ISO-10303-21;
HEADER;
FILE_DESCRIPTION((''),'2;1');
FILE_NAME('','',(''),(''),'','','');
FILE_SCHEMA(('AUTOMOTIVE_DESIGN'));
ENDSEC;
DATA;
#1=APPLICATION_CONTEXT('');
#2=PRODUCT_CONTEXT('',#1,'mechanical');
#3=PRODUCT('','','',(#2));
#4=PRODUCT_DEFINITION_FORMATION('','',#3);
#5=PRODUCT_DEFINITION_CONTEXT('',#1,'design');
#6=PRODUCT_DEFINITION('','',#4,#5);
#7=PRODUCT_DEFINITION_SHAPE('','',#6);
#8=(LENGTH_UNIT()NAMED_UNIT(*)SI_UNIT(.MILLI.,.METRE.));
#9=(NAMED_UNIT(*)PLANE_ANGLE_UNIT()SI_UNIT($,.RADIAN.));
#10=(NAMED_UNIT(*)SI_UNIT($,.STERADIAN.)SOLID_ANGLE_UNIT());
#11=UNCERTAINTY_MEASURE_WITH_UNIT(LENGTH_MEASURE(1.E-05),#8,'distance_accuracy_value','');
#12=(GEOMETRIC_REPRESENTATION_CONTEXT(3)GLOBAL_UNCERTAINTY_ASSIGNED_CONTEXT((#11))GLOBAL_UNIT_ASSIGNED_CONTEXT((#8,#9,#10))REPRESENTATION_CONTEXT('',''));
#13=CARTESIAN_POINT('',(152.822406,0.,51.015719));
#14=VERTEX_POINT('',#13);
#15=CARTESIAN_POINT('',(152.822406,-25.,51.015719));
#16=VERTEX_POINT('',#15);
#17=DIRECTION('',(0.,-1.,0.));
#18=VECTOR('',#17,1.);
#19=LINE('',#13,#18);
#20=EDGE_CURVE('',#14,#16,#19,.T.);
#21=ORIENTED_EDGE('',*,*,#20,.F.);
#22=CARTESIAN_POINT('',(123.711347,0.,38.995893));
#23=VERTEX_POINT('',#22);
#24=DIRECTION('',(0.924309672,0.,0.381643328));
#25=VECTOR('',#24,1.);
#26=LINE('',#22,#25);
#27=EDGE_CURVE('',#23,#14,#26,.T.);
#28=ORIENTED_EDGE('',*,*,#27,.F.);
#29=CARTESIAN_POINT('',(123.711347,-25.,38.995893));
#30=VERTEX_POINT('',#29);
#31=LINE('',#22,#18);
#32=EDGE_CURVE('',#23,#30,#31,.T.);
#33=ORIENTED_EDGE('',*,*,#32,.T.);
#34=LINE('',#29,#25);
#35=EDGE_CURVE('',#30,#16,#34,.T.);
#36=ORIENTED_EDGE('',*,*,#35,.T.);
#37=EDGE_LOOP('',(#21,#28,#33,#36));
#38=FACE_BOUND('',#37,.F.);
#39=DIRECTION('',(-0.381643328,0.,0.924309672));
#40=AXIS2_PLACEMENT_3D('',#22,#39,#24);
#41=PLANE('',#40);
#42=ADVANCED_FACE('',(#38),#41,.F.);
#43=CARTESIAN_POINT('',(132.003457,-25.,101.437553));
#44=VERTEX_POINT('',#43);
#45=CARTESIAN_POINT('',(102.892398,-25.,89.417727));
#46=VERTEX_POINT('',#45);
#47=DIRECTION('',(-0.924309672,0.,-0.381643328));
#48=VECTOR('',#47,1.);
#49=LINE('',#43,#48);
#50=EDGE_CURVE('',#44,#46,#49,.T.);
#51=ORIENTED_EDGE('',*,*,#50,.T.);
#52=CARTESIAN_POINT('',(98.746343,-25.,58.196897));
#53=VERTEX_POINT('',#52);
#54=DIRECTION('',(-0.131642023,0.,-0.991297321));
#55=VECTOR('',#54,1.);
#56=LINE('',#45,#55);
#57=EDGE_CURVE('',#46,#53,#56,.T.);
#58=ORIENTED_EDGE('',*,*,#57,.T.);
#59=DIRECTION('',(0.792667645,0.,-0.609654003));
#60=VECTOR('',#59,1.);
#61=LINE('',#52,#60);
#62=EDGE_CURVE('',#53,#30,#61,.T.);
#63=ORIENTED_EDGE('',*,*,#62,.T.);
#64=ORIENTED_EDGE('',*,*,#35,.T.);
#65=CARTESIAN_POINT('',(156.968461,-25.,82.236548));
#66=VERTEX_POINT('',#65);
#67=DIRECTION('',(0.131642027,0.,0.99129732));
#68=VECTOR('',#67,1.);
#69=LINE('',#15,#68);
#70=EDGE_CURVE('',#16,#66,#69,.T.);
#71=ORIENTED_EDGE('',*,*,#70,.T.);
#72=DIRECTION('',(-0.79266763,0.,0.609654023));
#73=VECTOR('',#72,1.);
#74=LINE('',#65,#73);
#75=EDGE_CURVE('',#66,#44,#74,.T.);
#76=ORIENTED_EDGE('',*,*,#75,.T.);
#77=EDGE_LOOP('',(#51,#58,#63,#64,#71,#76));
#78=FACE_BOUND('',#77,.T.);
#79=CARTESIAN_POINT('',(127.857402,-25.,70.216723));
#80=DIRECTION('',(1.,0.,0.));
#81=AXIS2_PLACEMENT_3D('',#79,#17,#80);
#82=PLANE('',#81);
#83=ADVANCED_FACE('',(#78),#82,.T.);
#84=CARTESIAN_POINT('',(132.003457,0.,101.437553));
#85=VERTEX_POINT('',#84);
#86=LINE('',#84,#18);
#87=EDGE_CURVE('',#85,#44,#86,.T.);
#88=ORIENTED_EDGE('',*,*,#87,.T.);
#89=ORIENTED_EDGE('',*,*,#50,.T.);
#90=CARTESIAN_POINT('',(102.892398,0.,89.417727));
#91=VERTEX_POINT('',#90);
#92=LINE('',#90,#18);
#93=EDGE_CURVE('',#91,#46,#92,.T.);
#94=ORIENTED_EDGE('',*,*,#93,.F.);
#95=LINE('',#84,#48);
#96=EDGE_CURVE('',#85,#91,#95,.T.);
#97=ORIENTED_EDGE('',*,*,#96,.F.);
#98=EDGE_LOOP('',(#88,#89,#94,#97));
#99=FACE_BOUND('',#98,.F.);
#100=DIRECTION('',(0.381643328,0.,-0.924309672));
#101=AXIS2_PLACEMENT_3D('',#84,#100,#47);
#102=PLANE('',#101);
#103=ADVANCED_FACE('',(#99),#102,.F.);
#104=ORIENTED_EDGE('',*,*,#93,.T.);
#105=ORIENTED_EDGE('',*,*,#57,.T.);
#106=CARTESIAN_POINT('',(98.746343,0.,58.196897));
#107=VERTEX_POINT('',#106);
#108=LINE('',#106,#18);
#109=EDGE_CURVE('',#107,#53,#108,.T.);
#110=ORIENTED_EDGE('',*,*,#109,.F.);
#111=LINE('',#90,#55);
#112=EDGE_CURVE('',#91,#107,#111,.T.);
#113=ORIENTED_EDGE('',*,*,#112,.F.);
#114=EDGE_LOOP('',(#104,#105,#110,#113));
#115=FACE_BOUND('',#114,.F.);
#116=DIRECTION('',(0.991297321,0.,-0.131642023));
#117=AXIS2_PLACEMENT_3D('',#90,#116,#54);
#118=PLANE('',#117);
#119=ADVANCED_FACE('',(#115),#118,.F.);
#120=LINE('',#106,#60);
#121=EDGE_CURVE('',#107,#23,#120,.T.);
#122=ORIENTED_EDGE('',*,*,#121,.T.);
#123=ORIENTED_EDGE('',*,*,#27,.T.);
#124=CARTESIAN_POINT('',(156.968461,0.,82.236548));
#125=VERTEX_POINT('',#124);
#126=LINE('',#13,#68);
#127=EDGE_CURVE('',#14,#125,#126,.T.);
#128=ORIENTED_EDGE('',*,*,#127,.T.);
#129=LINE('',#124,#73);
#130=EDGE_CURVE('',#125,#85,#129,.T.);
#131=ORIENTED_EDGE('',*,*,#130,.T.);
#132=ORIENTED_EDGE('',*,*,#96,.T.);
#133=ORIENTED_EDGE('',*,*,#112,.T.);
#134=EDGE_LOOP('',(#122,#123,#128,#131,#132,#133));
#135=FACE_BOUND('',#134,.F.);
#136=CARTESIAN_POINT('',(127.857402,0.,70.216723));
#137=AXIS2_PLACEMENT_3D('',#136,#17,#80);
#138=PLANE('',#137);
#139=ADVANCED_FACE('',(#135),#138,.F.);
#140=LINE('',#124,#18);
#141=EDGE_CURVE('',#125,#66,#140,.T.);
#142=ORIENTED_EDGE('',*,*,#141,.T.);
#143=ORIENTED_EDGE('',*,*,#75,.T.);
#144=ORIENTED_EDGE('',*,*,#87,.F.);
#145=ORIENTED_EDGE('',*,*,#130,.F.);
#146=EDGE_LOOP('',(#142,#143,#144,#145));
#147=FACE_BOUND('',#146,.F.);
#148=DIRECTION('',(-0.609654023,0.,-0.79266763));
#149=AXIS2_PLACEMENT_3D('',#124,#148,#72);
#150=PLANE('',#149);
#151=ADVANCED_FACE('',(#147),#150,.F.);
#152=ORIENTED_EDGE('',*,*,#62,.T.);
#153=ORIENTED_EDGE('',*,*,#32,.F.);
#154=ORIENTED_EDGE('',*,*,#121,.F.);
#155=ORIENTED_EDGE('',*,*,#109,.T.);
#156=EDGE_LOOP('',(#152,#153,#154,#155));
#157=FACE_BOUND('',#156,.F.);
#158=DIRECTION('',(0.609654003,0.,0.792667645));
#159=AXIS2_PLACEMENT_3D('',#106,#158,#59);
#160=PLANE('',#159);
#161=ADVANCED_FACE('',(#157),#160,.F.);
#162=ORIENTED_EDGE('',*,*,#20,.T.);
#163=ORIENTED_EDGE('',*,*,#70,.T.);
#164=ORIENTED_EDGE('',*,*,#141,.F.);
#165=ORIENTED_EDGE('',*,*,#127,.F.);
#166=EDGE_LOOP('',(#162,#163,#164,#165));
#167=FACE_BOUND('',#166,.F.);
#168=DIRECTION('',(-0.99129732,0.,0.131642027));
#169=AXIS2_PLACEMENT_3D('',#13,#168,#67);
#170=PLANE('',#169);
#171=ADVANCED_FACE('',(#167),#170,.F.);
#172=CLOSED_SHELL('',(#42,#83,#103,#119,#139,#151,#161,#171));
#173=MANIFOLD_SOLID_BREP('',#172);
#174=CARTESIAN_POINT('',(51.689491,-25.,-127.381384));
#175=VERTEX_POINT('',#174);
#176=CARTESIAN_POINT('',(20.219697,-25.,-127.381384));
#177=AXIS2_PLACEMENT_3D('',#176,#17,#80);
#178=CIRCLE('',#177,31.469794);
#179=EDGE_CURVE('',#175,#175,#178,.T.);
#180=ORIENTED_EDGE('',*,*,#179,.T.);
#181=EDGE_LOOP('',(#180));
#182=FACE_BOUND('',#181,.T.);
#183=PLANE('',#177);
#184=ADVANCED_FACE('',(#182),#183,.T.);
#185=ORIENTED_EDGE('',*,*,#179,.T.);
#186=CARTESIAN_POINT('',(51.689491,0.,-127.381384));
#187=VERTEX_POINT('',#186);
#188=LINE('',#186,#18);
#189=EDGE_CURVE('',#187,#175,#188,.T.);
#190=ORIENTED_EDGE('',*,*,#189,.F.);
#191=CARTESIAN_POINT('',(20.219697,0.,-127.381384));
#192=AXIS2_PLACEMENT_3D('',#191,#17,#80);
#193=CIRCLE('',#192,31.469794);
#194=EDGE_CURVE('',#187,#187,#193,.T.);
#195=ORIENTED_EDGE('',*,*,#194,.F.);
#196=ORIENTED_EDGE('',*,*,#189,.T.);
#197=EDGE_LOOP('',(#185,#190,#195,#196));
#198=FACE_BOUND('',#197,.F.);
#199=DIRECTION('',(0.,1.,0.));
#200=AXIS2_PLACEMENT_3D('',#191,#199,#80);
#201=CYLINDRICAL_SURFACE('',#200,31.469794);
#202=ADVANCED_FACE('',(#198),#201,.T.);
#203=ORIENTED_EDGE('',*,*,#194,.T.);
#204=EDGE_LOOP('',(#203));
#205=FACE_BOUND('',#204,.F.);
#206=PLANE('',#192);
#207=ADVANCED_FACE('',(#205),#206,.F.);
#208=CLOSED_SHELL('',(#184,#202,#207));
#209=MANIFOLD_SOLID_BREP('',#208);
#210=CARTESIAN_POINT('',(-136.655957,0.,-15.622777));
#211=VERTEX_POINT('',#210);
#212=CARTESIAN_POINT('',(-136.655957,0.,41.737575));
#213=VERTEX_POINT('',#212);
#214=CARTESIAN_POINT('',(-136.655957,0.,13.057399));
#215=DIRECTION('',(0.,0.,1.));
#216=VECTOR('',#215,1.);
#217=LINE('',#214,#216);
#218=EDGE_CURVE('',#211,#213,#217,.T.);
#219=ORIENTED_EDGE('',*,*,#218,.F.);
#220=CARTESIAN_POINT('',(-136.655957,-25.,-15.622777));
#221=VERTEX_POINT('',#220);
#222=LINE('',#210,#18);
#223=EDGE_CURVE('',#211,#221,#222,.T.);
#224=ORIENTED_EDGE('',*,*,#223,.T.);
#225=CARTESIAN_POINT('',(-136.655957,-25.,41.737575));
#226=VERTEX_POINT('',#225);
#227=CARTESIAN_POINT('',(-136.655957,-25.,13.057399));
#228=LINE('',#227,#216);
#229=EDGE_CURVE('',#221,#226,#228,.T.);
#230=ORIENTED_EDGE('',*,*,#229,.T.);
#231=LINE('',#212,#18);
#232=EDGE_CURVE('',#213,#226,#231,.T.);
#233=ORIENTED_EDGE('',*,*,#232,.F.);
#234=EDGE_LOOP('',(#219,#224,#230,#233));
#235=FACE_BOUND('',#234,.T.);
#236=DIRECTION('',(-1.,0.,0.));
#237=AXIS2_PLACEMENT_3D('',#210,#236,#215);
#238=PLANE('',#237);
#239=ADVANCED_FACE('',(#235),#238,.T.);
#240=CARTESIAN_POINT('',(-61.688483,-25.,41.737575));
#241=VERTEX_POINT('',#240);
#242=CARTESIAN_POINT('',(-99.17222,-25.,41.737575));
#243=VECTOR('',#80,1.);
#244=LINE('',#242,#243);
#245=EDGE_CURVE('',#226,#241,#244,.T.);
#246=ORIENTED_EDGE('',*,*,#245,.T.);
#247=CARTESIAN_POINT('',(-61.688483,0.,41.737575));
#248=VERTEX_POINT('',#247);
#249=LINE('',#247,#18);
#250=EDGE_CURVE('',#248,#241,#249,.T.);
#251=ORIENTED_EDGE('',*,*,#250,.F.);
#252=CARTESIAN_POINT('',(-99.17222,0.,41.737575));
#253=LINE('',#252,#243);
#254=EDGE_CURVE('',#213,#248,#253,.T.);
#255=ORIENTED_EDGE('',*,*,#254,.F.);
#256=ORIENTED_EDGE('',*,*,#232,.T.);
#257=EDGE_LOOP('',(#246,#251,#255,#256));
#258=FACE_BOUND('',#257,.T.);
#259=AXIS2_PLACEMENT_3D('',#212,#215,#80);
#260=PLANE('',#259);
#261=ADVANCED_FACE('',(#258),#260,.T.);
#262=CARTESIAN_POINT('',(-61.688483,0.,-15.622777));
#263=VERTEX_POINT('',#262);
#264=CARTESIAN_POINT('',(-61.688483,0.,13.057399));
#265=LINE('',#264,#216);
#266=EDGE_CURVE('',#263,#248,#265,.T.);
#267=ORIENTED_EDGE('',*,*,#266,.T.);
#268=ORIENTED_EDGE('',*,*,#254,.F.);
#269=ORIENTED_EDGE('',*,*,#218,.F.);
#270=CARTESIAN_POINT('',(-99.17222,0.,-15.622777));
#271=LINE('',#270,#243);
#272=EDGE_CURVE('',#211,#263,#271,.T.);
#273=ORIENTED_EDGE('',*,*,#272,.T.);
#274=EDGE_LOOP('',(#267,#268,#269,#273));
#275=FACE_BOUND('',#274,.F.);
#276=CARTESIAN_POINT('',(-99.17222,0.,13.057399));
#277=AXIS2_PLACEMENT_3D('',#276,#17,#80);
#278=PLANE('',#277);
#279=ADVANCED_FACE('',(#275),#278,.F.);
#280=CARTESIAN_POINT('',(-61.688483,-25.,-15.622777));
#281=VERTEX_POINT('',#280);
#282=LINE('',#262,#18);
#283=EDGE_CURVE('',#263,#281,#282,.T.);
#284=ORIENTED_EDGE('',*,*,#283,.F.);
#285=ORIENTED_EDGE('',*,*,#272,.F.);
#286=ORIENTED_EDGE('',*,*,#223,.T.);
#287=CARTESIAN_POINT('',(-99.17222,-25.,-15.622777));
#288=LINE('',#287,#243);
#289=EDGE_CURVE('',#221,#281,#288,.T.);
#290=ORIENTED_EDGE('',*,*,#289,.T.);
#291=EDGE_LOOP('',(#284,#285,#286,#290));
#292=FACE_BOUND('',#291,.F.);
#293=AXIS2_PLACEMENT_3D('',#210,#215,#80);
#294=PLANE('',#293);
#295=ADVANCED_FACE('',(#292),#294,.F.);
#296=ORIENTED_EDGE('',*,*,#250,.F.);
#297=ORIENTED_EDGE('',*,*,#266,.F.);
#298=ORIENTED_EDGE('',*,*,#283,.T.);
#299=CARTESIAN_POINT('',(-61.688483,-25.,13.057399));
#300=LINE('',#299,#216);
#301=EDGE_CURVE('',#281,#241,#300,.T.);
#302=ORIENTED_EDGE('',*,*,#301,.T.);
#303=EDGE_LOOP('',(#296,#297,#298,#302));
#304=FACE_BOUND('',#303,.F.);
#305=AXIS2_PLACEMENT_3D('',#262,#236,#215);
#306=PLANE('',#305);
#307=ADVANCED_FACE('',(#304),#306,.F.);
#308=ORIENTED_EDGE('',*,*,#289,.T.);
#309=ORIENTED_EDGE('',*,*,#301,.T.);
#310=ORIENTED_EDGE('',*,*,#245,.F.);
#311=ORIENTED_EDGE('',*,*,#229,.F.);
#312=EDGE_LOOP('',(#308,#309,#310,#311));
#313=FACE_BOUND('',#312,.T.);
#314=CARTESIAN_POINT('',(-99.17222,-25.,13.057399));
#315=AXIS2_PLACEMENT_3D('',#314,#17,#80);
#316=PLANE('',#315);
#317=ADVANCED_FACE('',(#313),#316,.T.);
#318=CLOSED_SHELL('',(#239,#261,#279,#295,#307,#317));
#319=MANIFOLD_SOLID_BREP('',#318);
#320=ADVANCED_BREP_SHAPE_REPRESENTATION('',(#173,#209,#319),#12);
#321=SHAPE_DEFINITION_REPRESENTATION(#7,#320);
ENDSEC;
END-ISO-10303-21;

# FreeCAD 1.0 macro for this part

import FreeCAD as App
import Part
import Sketcher

V = App.Vector
Q = App.Units.Quantity


def add_polygon(sketch, points):
    """Adds a closed chain of lines whose ends are joined by coincident constraints."""
    first, n = sketch.GeometryCount, len(points)
    for a, b in zip(points, points[1:] + points[:1]):
        sketch.addGeometry(Part.LineSegment(App.Vector(*a, 0), App.Vector(*b, 0)), False)
    for i in range(n):
        sketch.addConstraint(Sketcher.Constraint("Coincident", first + i, 2, first + (i + 1) % n, 1))

doc = App.newDocument("Part")
body = doc.addObject("PartDesign::Body", "Body")

sketch1 = body.newObject("Sketcher::SketchObject", "Sketch")
sketch1.AttachmentSupport = (doc.getObject("XZ_Plane"), [""])
sketch1.MapMode = "FlatFace"
add_polygon(sketch1, [(-137, 42), (-137, -16), (-62, -16), (-62, 42)])
sketch1.addConstraint(Sketcher.Constraint("Vertical", 0))
sketch1.addConstraint(Sketcher.Constraint("Horizontal", 1))
sketch1.addConstraint(Sketcher.Constraint("Vertical", 2))
sketch1.addConstraint(Sketcher.Constraint("Horizontal", 3))
sketch1.addConstraint(Sketcher.Constraint("DistanceY", 0, 2, 0, 1, Q("57.360351 mm")))
sketch1.addConstraint(Sketcher.Constraint("DistanceX", 1, 1, 1, 2, Q("74.967474 mm")))
sketch1.addConstraint(Sketcher.Constraint("DistanceX", 0, 2, -1, 1, Q("136.655957 mm")))
sketch1.addConstraint(Sketcher.Constraint("DistanceY", 0, 2, -1, 1, Q("15.622777 mm")))
pad1 = body.newObject("PartDesign::Pad", "Pad")
pad1.Profile = sketch1
pad1.Length = 25
body2 = doc.addObject("PartDesign::Body", "Body001")

sketch2 = body2.newObject("Sketcher::SketchObject", "Sketch001")
sketch2.AttachmentSupport = (doc.getObject("XZ_Plane001"), [""])
sketch2.MapMode = "FlatFace"
sketch2.addGeometry(Part.Circle(V(20, -127, 0), V(0, 0, 1), 31), False)
sketch2.addConstraint(Sketcher.Constraint("Diameter", 0, Q("62.939588 mm")))
sketch2.addConstraint(Sketcher.Constraint("DistanceX", -1, 1, 0, 3, Q("20.219697 mm")))
sketch2.addConstraint(Sketcher.Constraint("DistanceY", 0, 3, -1, 1, Q("127.381384 mm")))
pad2 = body2.newObject("PartDesign::Pad", "Pad001")
pad2.Profile = sketch2
pad2.Length = 25
body3 = doc.addObject("PartDesign::Body", "Body002")

sketch3 = body3.newObject("Sketcher::SketchObject", "Sketch002")
sketch3.AttachmentSupport = (doc.getObject("XZ_Plane002"), [""])
sketch3.MapMode = "FlatFace"
add_polygon(sketch3, [(132.003457, 101.437553), (102.892398, 89.417727), (98.746343, 58.196897), (123.711347, 38.995893), (152.822406, 51.015719), (156.968461, 82.236548)])
sketch3.addConstraint(Sketcher.Constraint("Parallel", 0, 3))
sketch3.addConstraint(Sketcher.Constraint("Parallel", 1, 4))
sketch3.addConstraint(Sketcher.Constraint("Parallel", 2, 5))
sketch3.addConstraint(Sketcher.Constraint("Equal", 0, 1))
sketch3.addConstraint(Sketcher.Constraint("Equal", 1, 2))
sketch3.addConstraint(Sketcher.Constraint("Equal", 2, 3))
sketch3.addConstraint(Sketcher.Constraint("DistanceX", -1, 1, 0, 2, Q("102.892398 mm")))
sketch3.addConstraint(Sketcher.Constraint("Distance", 0, Q("31.49492 mm")))
sketch3.addConstraint(Sketcher.Constraint("DistanceY", -1, 1, 3, 2, Q("51.015719 mm")))
sketch3.addConstraint(Sketcher.Constraint("DistanceX", -1, 1, 4, 2, Q("156.968461 mm")))
sketch3.addConstraint(Sketcher.Constraint("DistanceY", -1, 1, 4, 2, Q("82.236548 mm")))
sketch3.addConstraint(Sketcher.Constraint("DistanceX", 0, 2, 2, 2, Q("20.818949 mm")))
pad3 = body3.newObject("PartDesign::Pad", "Pad002")
pad3.Profile = sketch3
pad3.Length = 25

doc.recompute()
